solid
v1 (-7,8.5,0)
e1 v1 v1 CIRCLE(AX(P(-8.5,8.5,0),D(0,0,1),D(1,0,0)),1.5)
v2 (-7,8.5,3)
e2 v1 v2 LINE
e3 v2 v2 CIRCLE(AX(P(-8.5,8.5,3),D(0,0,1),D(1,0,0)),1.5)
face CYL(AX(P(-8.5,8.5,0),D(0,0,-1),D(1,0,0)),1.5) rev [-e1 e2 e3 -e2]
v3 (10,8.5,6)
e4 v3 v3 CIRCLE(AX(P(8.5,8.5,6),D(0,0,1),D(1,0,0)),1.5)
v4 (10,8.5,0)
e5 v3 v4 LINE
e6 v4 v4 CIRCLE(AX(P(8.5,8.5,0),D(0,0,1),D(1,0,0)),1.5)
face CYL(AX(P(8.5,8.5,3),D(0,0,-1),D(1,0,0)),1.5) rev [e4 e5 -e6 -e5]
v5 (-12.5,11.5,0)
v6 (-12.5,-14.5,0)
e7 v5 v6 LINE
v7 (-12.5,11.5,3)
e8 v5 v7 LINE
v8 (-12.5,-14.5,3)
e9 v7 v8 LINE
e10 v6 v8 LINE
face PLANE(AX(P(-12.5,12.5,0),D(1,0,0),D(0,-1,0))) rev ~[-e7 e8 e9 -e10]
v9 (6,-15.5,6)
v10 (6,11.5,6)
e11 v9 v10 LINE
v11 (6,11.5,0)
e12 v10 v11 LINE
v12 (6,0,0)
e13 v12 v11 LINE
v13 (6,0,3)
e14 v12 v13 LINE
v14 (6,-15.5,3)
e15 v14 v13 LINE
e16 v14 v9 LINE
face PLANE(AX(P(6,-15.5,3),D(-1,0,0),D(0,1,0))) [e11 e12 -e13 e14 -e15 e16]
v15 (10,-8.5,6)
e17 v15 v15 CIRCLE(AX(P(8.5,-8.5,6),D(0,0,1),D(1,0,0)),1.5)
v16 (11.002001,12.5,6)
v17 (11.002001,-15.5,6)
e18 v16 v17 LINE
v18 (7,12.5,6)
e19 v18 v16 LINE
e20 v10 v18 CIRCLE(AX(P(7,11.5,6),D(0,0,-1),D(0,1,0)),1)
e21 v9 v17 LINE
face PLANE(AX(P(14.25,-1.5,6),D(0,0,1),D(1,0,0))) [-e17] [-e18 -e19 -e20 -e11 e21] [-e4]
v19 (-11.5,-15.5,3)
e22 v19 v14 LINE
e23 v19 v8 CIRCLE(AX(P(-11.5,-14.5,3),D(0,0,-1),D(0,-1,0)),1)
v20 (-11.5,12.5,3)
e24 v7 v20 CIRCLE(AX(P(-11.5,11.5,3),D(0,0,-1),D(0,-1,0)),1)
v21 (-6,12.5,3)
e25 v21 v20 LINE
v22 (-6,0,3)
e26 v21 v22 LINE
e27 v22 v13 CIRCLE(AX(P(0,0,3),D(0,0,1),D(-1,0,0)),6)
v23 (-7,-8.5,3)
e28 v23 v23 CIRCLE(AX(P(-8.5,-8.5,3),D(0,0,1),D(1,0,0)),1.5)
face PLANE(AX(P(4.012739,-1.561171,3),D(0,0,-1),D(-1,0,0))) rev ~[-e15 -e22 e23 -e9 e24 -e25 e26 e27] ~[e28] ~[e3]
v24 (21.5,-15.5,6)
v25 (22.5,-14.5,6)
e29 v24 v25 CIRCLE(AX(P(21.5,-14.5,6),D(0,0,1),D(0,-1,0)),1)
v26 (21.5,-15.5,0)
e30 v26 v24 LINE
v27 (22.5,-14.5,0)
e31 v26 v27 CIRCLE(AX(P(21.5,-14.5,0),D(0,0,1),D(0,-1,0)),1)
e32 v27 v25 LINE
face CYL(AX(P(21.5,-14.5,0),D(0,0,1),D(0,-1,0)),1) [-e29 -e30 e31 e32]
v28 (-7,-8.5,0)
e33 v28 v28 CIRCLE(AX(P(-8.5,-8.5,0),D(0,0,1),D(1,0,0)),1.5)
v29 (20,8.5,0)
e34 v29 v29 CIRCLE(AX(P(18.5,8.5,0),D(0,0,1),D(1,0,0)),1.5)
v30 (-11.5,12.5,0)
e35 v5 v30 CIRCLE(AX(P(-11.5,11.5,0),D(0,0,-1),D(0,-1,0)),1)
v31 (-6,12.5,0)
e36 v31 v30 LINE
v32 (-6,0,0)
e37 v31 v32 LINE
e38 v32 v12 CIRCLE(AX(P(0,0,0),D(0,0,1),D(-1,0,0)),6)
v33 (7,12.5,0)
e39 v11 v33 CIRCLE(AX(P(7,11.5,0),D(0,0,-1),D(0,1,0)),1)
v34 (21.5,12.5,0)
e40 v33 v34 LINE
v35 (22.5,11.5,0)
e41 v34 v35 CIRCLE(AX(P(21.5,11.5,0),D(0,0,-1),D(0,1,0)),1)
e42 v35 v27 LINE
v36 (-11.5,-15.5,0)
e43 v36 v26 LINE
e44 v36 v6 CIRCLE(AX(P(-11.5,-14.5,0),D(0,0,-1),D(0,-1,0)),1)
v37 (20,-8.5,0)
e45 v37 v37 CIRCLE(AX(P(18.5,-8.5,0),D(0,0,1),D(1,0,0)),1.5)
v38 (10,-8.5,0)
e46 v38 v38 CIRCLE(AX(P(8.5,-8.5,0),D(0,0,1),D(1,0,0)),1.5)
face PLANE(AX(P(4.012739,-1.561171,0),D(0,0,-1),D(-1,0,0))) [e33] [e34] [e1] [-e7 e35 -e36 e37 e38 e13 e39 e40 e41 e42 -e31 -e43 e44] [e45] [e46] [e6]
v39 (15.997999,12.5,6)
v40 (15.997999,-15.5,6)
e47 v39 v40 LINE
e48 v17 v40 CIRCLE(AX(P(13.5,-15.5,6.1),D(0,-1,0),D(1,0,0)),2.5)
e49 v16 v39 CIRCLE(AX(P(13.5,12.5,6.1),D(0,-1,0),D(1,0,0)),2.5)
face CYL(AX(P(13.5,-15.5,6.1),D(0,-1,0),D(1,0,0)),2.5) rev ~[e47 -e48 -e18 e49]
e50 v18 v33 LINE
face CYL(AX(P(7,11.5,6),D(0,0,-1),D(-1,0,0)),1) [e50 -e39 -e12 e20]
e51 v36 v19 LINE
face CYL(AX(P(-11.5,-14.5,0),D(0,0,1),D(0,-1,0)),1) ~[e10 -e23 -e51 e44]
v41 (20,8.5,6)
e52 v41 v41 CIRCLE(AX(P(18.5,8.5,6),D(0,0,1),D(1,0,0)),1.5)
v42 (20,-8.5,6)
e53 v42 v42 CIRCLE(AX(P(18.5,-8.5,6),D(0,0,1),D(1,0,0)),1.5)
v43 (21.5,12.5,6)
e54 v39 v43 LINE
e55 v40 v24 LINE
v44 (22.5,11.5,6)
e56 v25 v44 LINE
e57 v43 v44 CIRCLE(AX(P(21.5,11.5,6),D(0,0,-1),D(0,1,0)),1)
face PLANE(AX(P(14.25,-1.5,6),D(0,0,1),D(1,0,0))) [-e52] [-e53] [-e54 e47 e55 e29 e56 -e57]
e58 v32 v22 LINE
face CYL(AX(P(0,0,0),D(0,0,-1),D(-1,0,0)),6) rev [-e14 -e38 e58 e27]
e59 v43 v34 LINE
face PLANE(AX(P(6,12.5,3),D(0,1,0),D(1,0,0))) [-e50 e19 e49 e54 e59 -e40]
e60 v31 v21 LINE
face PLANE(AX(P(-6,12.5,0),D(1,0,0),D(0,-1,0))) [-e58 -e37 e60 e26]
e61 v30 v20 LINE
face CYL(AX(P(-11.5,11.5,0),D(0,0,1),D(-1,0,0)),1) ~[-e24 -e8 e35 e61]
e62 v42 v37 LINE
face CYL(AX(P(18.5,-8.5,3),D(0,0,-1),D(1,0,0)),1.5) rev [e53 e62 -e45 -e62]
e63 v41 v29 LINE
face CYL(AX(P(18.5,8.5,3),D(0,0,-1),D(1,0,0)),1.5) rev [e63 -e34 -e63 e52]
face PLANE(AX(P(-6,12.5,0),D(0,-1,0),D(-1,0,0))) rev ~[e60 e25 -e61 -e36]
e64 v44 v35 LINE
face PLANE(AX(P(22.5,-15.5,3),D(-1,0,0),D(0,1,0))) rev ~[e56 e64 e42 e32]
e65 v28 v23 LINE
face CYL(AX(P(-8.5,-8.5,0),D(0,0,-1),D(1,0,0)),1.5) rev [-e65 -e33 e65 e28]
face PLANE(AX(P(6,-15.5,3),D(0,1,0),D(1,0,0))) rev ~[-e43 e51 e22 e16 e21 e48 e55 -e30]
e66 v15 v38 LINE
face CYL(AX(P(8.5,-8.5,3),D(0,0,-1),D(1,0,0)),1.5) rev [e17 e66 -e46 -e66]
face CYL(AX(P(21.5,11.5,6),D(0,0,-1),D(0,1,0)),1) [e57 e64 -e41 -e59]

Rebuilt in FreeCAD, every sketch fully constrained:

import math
import FreeCAD as App
import Part
import Sketcher
from FreeCAD import Vector
Q = App.Units.Quantity


def edges_at(feature, points):
    """Names of the edges that pass closest to the given points."""
    edges = feature.Shape.Edges
    near = lambda p: min(range(len(edges)), key=lambda i: edges[i].distToShape(Part.Vertex(*p))[0])
    return sorted({f"Edge{near(p) + 1}" for p in points})


def add_polygon(sketch, points):
    """Adds a closed chain of lines whose ends are joined by coincident constraints."""
    first, n = sketch.GeometryCount, len(points)
    for a, b in zip(points, points[1:] + points[:1]):
        sketch.addGeometry(Part.LineSegment(App.Vector(*a, 0), App.Vector(*b, 0)), False)
    for i in range(n):
        sketch.addConstraint(Sketcher.Constraint("Coincident", first + i, 2, first + (i + 1) % n, 1))

doc = App.newDocument("Part")
body = doc.addObject("PartDesign::Body", "Body")

# Sketch on XY plane
sketch1 = body.newObject("Sketcher::SketchObject", "Sketch")
sketch1.AttachmentSupport = (doc.getObject("XY_Plane"), [""])
sketch1.MapMode = "FlatFace"
sketch1.addGeometry([
    Part.ArcOfCircle(Part.Circle(Vector(0, 0, 0), Vector(0, 0, 1), 6), math.radians(180), math.radians(360)),  # 0
    Part.LineSegment(Vector(-6, 0, 0), Vector(-6, 12.5, 0)),  # 1
    Part.LineSegment(Vector(-6, 12.5, 0), Vector(-12.5, 12.5, 0)),  # 2
    Part.LineSegment(Vector(-12.5, 12.5, 0), Vector(-12.5, -15.5, 0)),  # 3
    Part.LineSegment(Vector(-12.5, -15.5, 0), Vector(22.5, -15.5, 0)),  # 4
    Part.LineSegment(Vector(22.5, -15.5, 0), Vector(22.5, 12.5, 0)),  # 5
    Part.LineSegment(Vector(22.5, 12.5, 0), Vector(6, 12.5, 0)),  # 6
    Part.LineSegment(Vector(6, 12.5, 0), Vector(6, 0, 0)),  # 7
    Part.Circle(Vector(18.5, -8.5, 0), Vector(0, 0, 1), 1.5),  # 8
    Part.Circle(Vector(8.5, -8.5, 0), Vector(0, 0, 1), 1.5),  # 9
    Part.Circle(Vector(-8.5, -8.5, 0), Vector(0, 0, 1), 1.5),  # 10
    Part.Circle(Vector(18.5, 8.5, 0), Vector(0, 0, 1), 1.5),  # 11
    Part.Circle(Vector(8.5, 8.5, 0), Vector(0, 0, 1), 1.5),  # 12
    Part.Circle(Vector(-8.5, 8.5, 0), Vector(0, 0, 1), 1.5),  # 13
], False)
sketch1.addConstraint([
    Sketcher.Constraint("Tangent", 0, 1, 1, 1),
    Sketcher.Constraint("Coincident", 1, 2, 2, 1),
    Sketcher.Constraint("Coincident", 2, 2, 3, 1),
    Sketcher.Constraint("Coincident", 3, 2, 4, 1),
    Sketcher.Constraint("Coincident", 4, 2, 5, 1),
    Sketcher.Constraint("Coincident", 5, 2, 6, 1),
    Sketcher.Constraint("Coincident", 6, 2, 7, 1),
    Sketcher.Constraint("Tangent", 7, 2, 0, 2),
    Sketcher.Constraint("Vertical", 1),
    Sketcher.Constraint("Horizontal", 2),
    Sketcher.Constraint("Vertical", 3),
    Sketcher.Constraint("Horizontal", 4),
    Sketcher.Constraint("Vertical", 5),
    Sketcher.Constraint("Horizontal", 6),
    Sketcher.Constraint("Vertical", 7),
    Sketcher.Constraint("Coincident", 0, 3, -1, 1),
    Sketcher.Constraint("Equal", 8, 9),
    Sketcher.Constraint("Equal", 9, 10),
    Sketcher.Constraint("Equal", 10, 11),
    Sketcher.Constraint("Equal", 11, 12),
    Sketcher.Constraint("Equal", 12, 13),
    Sketcher.Constraint("Symmetric", 10, 3, 12, 3, -1, 1),
    Sketcher.Constraint("Symmetric", 9, 3, 13, 3, -1, 1),
    Sketcher.Constraint("Symmetric", 9, 3, 10, 3, -2),
    Sketcher.Constraint("Symmetric", 8, 3, 11, 3, -1),
    Sketcher.Constraint("Horizontal", 8, 3, 9, 3),
    Sketcher.Constraint("Horizontal", 2, 2, 5, 2),
    Sketcher.Constraint("Diameter", 8, Q("3 mm")),
    Sketcher.Constraint("Radius", 0, Q("6 mm")),
    Sketcher.Constraint("DistanceX", 4, 1, 4, 2, Q("35 mm")),
    Sketcher.Constraint("DistanceY", 3, 2, 3, 1, Q("28 mm")),
    Sketcher.Constraint("DistanceX", 2, 2, 2, 1, Q("6.5 mm")),
    Sketcher.Constraint("DistanceY", 1, 1, 1, 2, Q("12.5 mm")),
    Sketcher.Constraint("DistanceX", 9, 3, 8, 3, Q("10 mm")),
    Sketcher.Constraint("DistanceX", 10, 3, 9, 3, Q("17 mm")),
    Sketcher.Constraint("DistanceY", 8, 3, 11, 3, Q("17 mm")),
])
pad1 = body.newObject("PartDesign::Pad", "Pad")
pad1.Profile = sketch1
pad1.Length = 3

# Sketch on XY plane
sketch2 = body.newObject("Sketcher::SketchObject", "Sketch001")
sketch2.AttachmentSupport = (doc.getObject("XY_Plane"), [""])
sketch2.MapMode = "FlatFace"
sketch2.AttachmentOffset = App.Placement(Vector(0, 0, 3), App.Rotation())
add_polygon(sketch2, [(6, 12.5), (6, -15.5), (22.5, -15.5), (22.5, 12.5)])  # lines 0-3
sketch2.addGeometry(Part.Circle(Vector(8.5, -8.5, 0), Vector(0, 0, 1), 1.5), False)  # 4
sketch2.addGeometry(Part.Circle(Vector(18.5, -8.5, 0), Vector(0, 0, 1), 1.5), False)  # 5
sketch2.addGeometry(Part.Circle(Vector(8.5, 8.5, 0), Vector(0, 0, 1), 1.5), False)  # 6
sketch2.addGeometry(Part.Circle(Vector(18.5, 8.5, 0), Vector(0, 0, 1), 1.5), False)  # 7
sketch2.addConstraint([
    Sketcher.Constraint("Vertical", 0),
    Sketcher.Constraint("Horizontal", 1),
    Sketcher.Constraint("Vertical", 2),
    Sketcher.Constraint("Horizontal", 3),
    Sketcher.Constraint("Equal", 4, 5),
    Sketcher.Constraint("Equal", 5, 6),
    Sketcher.Constraint("Equal", 6, 7),
    Sketcher.Constraint("Symmetric", 4, 3, 6, 3, -1),
    Sketcher.Constraint("Symmetric", 5, 3, 7, 3, -1),
    Sketcher.Constraint("Horizontal", 4, 3, 5, 3),
    Sketcher.Constraint("Diameter", 4, Q("3 mm")),
    Sketcher.Constraint("DistanceY", 0, 2, 0, 1, Q("28 mm")),
    Sketcher.Constraint("DistanceX", 1, 1, 1, 2, Q("16.5 mm")),
    Sketcher.Constraint("DistanceX", -1, 1, 0, 2, Q("6 mm")),
    Sketcher.Constraint("DistanceX", 4, 3, 5, 3, Q("10 mm")),
    Sketcher.Constraint("DistanceY", 4, 3, 6, 3, Q("17 mm")),
    Sketcher.Constraint("DistanceY", 0, 2, 4, 3, Q("7 mm")),
    Sketcher.Constraint("DistanceX", 5, 3, 1, 2, Q("4 mm")),
])
pad2 = body.newObject("PartDesign::Pad", "Pad001")
pad2.Profile = sketch2
pad2.Length = 3

# Sketch on XZ plane
sketch3 = body.newObject("Sketcher::SketchObject", "Sketch002")
sketch3.AttachmentSupport = (doc.getObject("XZ_Plane"), [""])
sketch3.MapMode = "FlatFace"
sketch3.AttachmentOffset = App.Placement(Vector(0, 0, 15.5), App.Rotation())
sketch3.addGeometry(Part.Circle(Vector(13.5, 6.1, 0), Vector(0, 0, 1), 2.5), False)
sketch3.addConstraint([
    Sketcher.Constraint("Diameter", 0, Q("5 mm")),
    Sketcher.Constraint("DistanceX", -1, 1, 0, 3, Q("13.5 mm")),
    Sketcher.Constraint("DistanceY", -1, 1, 0, 3, Q("6.1 mm")),
])
pocket1 = body.newObject("PartDesign::Pocket", "Pocket")
pocket1.Profile = sketch3
pocket1.Type = "ThroughAll"
doc.recompute()

fillet = body.newObject("PartDesign::Fillet", "Fillet")
fillet.Base = (pocket1, edges_at(pocket1, [(-12.5, -15.5, 1.5), (22.5, -15.5, 3), (22.5, -15.5, 3)]))
fillet.Radius = 1
doc.recompute()

fillet2 = body.newObject("PartDesign::Fillet", "Fillet001")
fillet2.Base = (fillet, edges_at(fillet, [(-12.5, 12.5, 1.5)]))
fillet2.Radius = 1
doc.recompute()

fillet3 = body.newObject("PartDesign::Fillet", "Fillet002")
fillet3.Base = (fillet2, edges_at(fillet2, [(6, 12.5, 3), (6, 12.5, 3)]))
fillet3.Radius = 1
doc.recompute()

fillet4 = body.newObject("PartDesign::Fillet", "Fillet003")
fillet4.Base = (fillet3, edges_at(fillet3, [(22.5, 12.5, 3), (22.5, 12.5, 3)]))
fillet4.Radius = 1

doc.recompute()
